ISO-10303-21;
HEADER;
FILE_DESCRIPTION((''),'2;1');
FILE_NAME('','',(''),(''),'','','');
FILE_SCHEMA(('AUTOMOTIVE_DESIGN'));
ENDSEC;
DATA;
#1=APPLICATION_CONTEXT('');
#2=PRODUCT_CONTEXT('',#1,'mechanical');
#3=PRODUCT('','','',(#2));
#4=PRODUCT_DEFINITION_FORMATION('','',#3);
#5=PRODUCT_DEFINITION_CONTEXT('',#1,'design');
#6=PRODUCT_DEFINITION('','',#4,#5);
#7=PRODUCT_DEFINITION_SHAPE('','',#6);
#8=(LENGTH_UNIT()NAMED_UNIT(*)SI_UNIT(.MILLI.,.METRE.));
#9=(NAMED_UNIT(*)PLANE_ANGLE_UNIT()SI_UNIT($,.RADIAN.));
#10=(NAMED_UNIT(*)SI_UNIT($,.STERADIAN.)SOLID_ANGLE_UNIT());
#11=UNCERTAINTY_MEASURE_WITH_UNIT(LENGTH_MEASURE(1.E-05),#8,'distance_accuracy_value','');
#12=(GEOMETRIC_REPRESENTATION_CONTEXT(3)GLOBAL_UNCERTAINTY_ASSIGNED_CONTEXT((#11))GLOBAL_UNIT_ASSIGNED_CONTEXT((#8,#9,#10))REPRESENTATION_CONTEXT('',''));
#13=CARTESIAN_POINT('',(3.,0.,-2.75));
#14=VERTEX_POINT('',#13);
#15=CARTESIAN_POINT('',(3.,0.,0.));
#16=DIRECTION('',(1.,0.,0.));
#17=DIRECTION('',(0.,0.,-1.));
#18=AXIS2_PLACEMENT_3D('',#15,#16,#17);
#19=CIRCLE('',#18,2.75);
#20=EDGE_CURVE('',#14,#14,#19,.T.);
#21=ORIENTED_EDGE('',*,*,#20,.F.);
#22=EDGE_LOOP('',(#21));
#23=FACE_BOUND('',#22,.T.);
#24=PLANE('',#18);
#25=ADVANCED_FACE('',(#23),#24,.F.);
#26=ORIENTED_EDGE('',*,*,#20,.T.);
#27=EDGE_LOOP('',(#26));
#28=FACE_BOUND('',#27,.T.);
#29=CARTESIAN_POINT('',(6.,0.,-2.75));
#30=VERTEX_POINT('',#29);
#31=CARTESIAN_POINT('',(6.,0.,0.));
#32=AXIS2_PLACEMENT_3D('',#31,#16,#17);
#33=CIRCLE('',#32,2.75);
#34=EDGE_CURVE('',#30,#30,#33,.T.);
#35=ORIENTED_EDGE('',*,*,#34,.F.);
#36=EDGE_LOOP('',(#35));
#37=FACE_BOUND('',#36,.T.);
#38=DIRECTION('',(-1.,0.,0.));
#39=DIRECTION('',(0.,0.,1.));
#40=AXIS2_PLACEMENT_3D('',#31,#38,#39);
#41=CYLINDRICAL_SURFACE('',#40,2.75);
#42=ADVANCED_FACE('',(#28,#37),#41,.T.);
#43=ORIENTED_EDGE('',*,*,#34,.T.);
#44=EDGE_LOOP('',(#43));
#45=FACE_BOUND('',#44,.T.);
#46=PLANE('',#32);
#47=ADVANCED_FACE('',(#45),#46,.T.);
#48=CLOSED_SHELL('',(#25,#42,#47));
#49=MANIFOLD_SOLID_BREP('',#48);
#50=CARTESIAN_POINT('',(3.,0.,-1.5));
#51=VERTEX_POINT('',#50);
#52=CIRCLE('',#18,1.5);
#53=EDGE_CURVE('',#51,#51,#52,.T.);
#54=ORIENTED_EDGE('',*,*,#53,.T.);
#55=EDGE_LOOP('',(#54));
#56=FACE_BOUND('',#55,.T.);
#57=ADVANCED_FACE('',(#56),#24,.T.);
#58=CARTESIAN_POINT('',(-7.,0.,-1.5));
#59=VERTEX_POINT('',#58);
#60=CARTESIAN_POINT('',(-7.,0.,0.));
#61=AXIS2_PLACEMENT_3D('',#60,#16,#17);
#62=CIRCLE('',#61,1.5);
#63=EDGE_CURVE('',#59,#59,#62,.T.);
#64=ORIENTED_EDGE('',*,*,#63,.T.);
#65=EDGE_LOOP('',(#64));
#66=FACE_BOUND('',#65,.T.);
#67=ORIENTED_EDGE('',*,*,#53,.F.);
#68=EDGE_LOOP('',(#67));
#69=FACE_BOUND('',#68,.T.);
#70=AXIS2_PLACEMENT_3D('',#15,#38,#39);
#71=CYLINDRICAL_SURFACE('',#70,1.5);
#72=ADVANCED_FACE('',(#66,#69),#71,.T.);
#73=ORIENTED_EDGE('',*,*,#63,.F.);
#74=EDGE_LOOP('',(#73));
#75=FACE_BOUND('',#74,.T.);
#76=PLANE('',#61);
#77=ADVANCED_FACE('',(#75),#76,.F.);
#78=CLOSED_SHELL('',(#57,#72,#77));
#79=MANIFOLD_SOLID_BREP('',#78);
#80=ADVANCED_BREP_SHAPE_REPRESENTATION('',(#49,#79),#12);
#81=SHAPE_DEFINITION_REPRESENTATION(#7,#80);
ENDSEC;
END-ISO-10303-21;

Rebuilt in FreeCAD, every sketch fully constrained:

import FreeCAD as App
import Part
import Sketcher
Q = App.Units.Quantity

doc = App.newDocument("Part")
body = doc.addObject("PartDesign::Body", "Body")

# Sketch on YZ plane
sketch1 = body.newObject("Sketcher::SketchObject", "Sketch")
sketch1.AttachmentSupport = (doc.getObject("YZ_Plane"), [""])
sketch1.MapMode = "FlatFace"
sketch1.AttachmentOffset = App.Placement(App.Vector(0, 0, 3), App.Rotation())
sketch1.addGeometry(Part.Circle(App.Vector(0, 0, 0), App.Vector(0, 0, 1), 2.8), False)
sketch1.addConstraint([
    Sketcher.Constraint("Coincident", 0, 3, -1, 1),
    Sketcher.Constraint("Diameter", 0, Q("5.5 mm")),
])
pad1 = body.newObject("PartDesign::Pad", "Pad")
pad1.Profile = sketch1
pad1.Length = 3
body2 = doc.addObject("PartDesign::Body", "Body001")

# Sketch on YZ plane
sketch2 = body2.newObject("Sketcher::SketchObject", "Sketch001")
sketch2.AttachmentSupport = (doc.getObject("YZ_Plane001"), [""])
sketch2.MapMode = "FlatFace"
sketch2.AttachmentOffset = App.Placement(App.Vector(0, 0, -7), App.Rotation())
sketch2.addGeometry(Part.Circle(App.Vector(0, 0, 0), App.Vector(0, 0, 1), 1.5), False)
sketch2.addConstraint([
    Sketcher.Constraint("Coincident", 0, 3, -1, 1),
    Sketcher.Constraint("Diameter", 0, Q("3 mm")),
])
pad2 = body2.newObject("PartDesign::Pad", "Pad001")
pad2.Profile = sketch2
pad2.Length = 10

doc.recompute()
